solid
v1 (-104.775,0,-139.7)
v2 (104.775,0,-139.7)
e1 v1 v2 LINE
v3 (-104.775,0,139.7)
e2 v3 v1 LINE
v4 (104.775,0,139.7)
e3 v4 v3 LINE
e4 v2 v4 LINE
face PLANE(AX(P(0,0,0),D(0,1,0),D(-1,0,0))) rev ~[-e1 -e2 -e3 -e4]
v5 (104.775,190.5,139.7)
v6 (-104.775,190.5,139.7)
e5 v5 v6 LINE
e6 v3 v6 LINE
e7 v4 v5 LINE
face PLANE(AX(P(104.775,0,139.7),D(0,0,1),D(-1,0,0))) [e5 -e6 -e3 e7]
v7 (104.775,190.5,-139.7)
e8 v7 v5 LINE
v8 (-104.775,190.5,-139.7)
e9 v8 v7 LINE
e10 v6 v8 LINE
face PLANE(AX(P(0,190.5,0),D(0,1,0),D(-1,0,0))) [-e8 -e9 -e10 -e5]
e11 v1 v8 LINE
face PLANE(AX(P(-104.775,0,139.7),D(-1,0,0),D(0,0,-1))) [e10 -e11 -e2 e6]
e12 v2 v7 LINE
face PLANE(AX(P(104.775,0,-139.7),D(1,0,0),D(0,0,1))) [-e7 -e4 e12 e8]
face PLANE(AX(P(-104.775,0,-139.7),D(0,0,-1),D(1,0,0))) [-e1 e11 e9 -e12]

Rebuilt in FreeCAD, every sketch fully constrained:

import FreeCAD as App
import Part
import Sketcher

V = App.Vector
Q = App.Units.Quantity

doc = App.newDocument("Part")
body = doc.addObject("PartDesign::Body", "Body")

sketch1 = doc.addObject("Sketcher::SketchObject", "Sketch")
body.addObject(sketch1)
sketch1.AttachmentSupport = (doc.XZ_Plane, [""])
sketch1.MapMode = "FlatFace"
sketch1.addGeometry(Part.LineSegment(V(-104.775, 139.7, 0), V(104.775, 139.7, 0)), False)
sketch1.addGeometry(Part.LineSegment(V(104.775, 139.7, 0), V(104.775, -139.7, 0)), False)
sketch1.addGeometry(Part.LineSegment(V(104.775, -139.7, 0), V(-104.775, -139.7, 0)), False)
sketch1.addGeometry(Part.LineSegment(V(-104.775, -139.7, 0), V(-104.775, 139.7, 0)), False)
sketch1.addConstraint(Sketcher.Constraint("Coincident", 0, 2, 1, 1))
sketch1.addConstraint(Sketcher.Constraint("Coincident", 1, 2, 2, 1))
sketch1.addConstraint(Sketcher.Constraint("Coincident", 2, 2, 3, 1))
sketch1.addConstraint(Sketcher.Constraint("Coincident", 3, 2, 0, 1))
sketch1.addConstraint(Sketcher.Constraint("Horizontal", 0))
sketch1.addConstraint(Sketcher.Constraint("Vertical", 1))
sketch1.addConstraint(Sketcher.Constraint("Horizontal", 2))
sketch1.addConstraint(Sketcher.Constraint("Vertical", 3))
sketch1.addConstraint(Sketcher.Constraint("Symmetric", 0, 2, 2, 2, -1, 1))
sketch1.addConstraint(Sketcher.Constraint("DistanceY", 1, 2, 1, 1, Q("11 in")))
sketch1.addConstraint(Sketcher.Constraint("DistanceX", 0, 1, 0, 2, Q("8.25 in")))
pad1 = doc.addObject("PartDesign::Pad", "Pad")
body.addObject(pad1)
pad1.Profile = sketch1
pad1.Length = Q("7.5 in")
pad1.Reversed = True

doc.recompute()
